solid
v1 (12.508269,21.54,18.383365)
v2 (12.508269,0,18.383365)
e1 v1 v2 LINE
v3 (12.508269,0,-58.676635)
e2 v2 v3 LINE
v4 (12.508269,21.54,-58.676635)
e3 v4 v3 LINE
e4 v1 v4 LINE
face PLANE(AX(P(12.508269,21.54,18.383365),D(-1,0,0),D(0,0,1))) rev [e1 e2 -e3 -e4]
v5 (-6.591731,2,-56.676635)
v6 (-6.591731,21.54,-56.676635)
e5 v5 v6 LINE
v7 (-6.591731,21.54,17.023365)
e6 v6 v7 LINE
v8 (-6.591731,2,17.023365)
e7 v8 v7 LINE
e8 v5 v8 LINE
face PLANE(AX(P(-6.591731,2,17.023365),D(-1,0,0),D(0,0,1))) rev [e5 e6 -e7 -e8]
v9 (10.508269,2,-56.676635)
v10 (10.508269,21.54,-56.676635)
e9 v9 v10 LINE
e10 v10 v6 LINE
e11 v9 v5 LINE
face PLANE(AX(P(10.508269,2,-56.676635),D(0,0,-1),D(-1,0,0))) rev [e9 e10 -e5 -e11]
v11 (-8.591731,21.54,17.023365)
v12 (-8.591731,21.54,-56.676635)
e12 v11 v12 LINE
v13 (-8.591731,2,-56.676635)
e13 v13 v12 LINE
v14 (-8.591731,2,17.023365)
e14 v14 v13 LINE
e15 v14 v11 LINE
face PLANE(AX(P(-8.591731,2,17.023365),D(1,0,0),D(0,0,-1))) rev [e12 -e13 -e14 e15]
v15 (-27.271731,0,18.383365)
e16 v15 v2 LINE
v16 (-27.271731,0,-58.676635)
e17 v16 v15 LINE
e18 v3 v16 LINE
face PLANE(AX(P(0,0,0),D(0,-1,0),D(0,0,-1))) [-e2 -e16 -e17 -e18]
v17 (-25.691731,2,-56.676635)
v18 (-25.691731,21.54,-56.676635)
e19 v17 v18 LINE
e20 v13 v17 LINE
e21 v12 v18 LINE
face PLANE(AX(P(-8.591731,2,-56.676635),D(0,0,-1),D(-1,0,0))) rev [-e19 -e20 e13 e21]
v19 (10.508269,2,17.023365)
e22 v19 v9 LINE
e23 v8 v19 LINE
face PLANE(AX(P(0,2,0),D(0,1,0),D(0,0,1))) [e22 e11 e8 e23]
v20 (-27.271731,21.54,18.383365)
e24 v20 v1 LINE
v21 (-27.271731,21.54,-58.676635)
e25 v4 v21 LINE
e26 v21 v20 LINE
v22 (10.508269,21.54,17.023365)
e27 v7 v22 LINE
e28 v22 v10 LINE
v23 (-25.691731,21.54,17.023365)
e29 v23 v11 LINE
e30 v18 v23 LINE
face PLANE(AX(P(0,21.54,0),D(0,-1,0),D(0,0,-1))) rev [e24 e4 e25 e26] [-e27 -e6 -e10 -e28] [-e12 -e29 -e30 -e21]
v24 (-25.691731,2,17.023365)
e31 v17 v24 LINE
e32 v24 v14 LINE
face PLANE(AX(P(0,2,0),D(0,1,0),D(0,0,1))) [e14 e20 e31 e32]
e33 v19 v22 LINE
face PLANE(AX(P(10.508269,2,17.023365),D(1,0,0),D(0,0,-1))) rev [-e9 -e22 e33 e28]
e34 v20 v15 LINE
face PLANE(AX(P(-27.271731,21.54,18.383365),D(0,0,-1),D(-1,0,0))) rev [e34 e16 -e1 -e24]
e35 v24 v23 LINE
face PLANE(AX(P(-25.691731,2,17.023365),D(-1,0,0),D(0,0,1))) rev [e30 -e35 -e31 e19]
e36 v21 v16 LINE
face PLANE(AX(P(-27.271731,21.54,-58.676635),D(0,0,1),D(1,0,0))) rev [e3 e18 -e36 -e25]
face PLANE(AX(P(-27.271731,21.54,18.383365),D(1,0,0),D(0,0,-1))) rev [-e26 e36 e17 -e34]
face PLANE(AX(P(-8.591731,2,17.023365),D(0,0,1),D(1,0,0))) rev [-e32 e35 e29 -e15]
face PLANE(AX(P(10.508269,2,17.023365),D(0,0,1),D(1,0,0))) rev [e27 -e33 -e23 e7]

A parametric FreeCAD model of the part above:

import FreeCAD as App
import Part
import Sketcher

V = App.Vector
Q = App.Units.Quantity

doc = App.newDocument("Part")
body = doc.addObject("PartDesign::Body", "Body")

# Sketch on XZ plane
sketch1 = body.newObject("Sketcher::SketchObject", "Sketch")
sketch1.AttachmentSupport = (doc.getObject("XZ_Plane"), [""])
sketch1.MapMode = "FlatFace"
sketch1.addGeometry(Part.LineSegment(V(-27.271731, -58.676635, 0), V(-27.271731, 18.383365, 0)), False)
sketch1.addGeometry(Part.LineSegment(V(-27.271731, 18.383365, 0), V(12.508269, 18.383365, 0)), False)
sketch1.addGeometry(Part.LineSegment(V(12.508269, 18.383365, 0), V(12.508269, -58.676635, 0)), False)
sketch1.addGeometry(Part.LineSegment(V(12.508269, -58.676635, 0), V(-27.271731, -58.676635, 0)), False)
sketch1.addConstraint(Sketcher.Constraint("Coincident", 0, 2, 1, 1))
sketch1.addConstraint(Sketcher.Constraint("Coincident", 1, 2, 2, 1))
sketch1.addConstraint(Sketcher.Constraint("Coincident", 2, 2, 3, 1))
sketch1.addConstraint(Sketcher.Constraint("Coincident", 3, 2, 0, 1))
sketch1.addConstraint(Sketcher.Constraint("Vertical", 0))
sketch1.addConstraint(Sketcher.Constraint("Horizontal", 1))
sketch1.addConstraint(Sketcher.Constraint("Vertical", 2))
sketch1.addConstraint(Sketcher.Constraint("Horizontal", 3))
sketch1.addConstraint(Sketcher.Constraint("DistanceX", 1, 1, 1, 2, Q("39.78 mm")))
sketch1.addConstraint(Sketcher.Constraint("DistanceY", 0, 1, 0, 2, Q("77.06 mm")))
sketch1.addConstraint(Sketcher.Constraint("DistanceX", 0, 2, -1, 1, Q("27.271731 mm")))
sketch1.addConstraint(Sketcher.Constraint("DistanceY", -1, 1, 0, 2, Q("18.383365 mm")))
pad1 = body.newObject("PartDesign::Pad", "Pad")
pad1.Profile = sketch1
pad1.Length = 21.54
pad1.Reversed = True

# Sketch on XZ plane
sketch2 = body.newObject("Sketcher::SketchObject", "Sketch001")
sketch2.AttachmentSupport = (doc.getObject("XZ_Plane"), [""])
sketch2.MapMode = "FlatFace"
sketch2.AttachmentOffset = App.Placement(V(0, 0, -21.54), App.Rotation())
sketch2.addGeometry(Part.LineSegment(V(-6.591731, -56.676635, 0), V(-6.591731, 17.023365, 0)), False)
sketch2.addGeometry(Part.LineSegment(V(-6.591731, 17.023365, 0), V(10.508269, 17.023365, 0)), False)
sketch2.addGeometry(Part.LineSegment(V(10.508269, 17.023365, 0), V(10.508269, -56.676635, 0)), False)
sketch2.addGeometry(Part.LineSegment(V(10.508269, -56.676635, 0), V(-6.591731, -56.676635, 0)), False)
sketch2.addGeometry(Part.LineSegment(V(-25.691731, -56.676635, 0), V(-25.691731, 17.023365, 0)), False)
sketch2.addGeometry(Part.LineSegment(V(-25.691731, 17.023365, 0), V(-8.591731, 17.023365, 0)), False)
sketch2.addGeometry(Part.LineSegment(V(-8.591731, 17.023365, 0), V(-8.591731, -56.676635, 0)), False)
sketch2.addGeometry(Part.LineSegment(V(-8.591731, -56.676635, 0), V(-25.691731, -56.676635, 0)), False)
sketch2.addConstraint(Sketcher.Constraint("Coincident", 0, 2, 1, 1))
sketch2.addConstraint(Sketcher.Constraint("Coincident", 1, 2, 2, 1))
sketch2.addConstraint(Sketcher.Constraint("Coincident", 2, 2, 3, 1))
sketch2.addConstraint(Sketcher.Constraint("Coincident", 3, 2, 0, 1))
sketch2.addConstraint(Sketcher.Constraint("Coincident", 4, 2, 5, 1))
sketch2.addConstraint(Sketcher.Constraint("Coincident", 5, 2, 6, 1))
sketch2.addConstraint(Sketcher.Constraint("Coincident", 6, 2, 7, 1))
sketch2.addConstraint(Sketcher.Constraint("Coincident", 7, 2, 4, 1))
sketch2.addConstraint(Sketcher.Constraint("Vertical", 0))
sketch2.addConstraint(Sketcher.Constraint("Horizontal", 1))
sketch2.addConstraint(Sketcher.Constraint("Vertical", 2))
sketch2.addConstraint(Sketcher.Constraint("Horizontal", 3))
sketch2.addConstraint(Sketcher.Constraint("Vertical", 4))
sketch2.addConstraint(Sketcher.Constraint("Horizontal", 5))
sketch2.addConstraint(Sketcher.Constraint("Vertical", 6))
sketch2.addConstraint(Sketcher.Constraint("Horizontal", 7))
sketch2.addConstraint(Sketcher.Constraint("Horizontal", 1, 2, 4, 2))
sketch2.addConstraint(Sketcher.Constraint("Horizontal", 3, 2, 6, 2))
sketch2.addConstraint(Sketcher.Constraint("Equal", 3, 5))
sketch2.addConstraint(Sketcher.Constraint("DistanceX", 1, 1, 1, 2, Q("17.1 mm")))
sketch2.addConstraint(Sketcher.Constraint("DistanceY", 0, 1, 0, 2, Q("73.7 mm")))
sketch2.addConstraint(Sketcher.Constraint("DistanceX", 5, 2, 0, 2, Q("2 mm")))
sketch2.addConstraint(Sketcher.Constraint("DistanceX", 0, 2, -1, 1, Q("6.591731 mm")))
sketch2.addConstraint(Sketcher.Constraint("DistanceY", -1, 1, 0, 2, Q("17.023365 mm")))
pocket1 = body.newObject("PartDesign::Pocket", "Pocket")
pocket1.Profile = sketch2
pocket1.Length = 19.54
pocket1.Reversed = True

doc.recompute()
